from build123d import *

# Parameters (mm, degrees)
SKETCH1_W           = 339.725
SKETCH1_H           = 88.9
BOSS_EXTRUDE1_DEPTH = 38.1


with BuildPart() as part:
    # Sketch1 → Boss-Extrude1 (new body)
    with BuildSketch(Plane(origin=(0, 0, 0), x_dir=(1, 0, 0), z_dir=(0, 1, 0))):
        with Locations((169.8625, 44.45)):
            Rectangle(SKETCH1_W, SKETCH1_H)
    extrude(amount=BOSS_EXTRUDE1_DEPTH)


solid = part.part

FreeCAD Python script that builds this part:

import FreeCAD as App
import Part
import Sketcher
Q = App.Units.Quantity


def add_polygon(sketch, points):
    """Adds a closed chain of lines whose ends are joined by coincident constraints."""
    first, n = sketch.GeometryCount, len(points)
    for a, b in zip(points, points[1:] + points[:1]):
        sketch.addGeometry(Part.LineSegment(App.Vector(*a, 0), App.Vector(*b, 0)), False)
    for i in range(n):
        sketch.addConstraint(Sketcher.Constraint("Coincident", first + i, 2, first + (i + 1) % n, 1))

doc = App.newDocument("Part")
body = doc.addObject("PartDesign::Body", "Body")

# Sketch on XZ plane
sketch1 = body.newObject("Sketcher::SketchObject", "Sketch")
sketch1.AttachmentSupport = (doc.getObject("XZ_Plane"), [""])
sketch1.MapMode = "FlatFace"
add_polygon(sketch1, [(0, -89), (0, 0), (340, 0), (340, -89)])  # lines 0-3
sketch1.addConstraint([
    Sketcher.Constraint("Vertical", 0),
    Sketcher.Constraint("Horizontal", 1),
    Sketcher.Constraint("Vertical", 2),
    Sketcher.Constraint("Horizontal", 3),
    Sketcher.Constraint("Coincident", 0, 2, -1, 1),
    Sketcher.Constraint("DistanceY", 0, 1, 0, 2, Q("3.5 in")),
    Sketcher.Constraint("DistanceX", 1, 1, 1, 2, Q("13.375 in")),
])
pad1 = body.newObject("PartDesign::Pad", "Pad")
pad1.Profile = sketch1
pad1.Length = Q("1.5 in")
pad1.Reversed = True

doc.recompute()
